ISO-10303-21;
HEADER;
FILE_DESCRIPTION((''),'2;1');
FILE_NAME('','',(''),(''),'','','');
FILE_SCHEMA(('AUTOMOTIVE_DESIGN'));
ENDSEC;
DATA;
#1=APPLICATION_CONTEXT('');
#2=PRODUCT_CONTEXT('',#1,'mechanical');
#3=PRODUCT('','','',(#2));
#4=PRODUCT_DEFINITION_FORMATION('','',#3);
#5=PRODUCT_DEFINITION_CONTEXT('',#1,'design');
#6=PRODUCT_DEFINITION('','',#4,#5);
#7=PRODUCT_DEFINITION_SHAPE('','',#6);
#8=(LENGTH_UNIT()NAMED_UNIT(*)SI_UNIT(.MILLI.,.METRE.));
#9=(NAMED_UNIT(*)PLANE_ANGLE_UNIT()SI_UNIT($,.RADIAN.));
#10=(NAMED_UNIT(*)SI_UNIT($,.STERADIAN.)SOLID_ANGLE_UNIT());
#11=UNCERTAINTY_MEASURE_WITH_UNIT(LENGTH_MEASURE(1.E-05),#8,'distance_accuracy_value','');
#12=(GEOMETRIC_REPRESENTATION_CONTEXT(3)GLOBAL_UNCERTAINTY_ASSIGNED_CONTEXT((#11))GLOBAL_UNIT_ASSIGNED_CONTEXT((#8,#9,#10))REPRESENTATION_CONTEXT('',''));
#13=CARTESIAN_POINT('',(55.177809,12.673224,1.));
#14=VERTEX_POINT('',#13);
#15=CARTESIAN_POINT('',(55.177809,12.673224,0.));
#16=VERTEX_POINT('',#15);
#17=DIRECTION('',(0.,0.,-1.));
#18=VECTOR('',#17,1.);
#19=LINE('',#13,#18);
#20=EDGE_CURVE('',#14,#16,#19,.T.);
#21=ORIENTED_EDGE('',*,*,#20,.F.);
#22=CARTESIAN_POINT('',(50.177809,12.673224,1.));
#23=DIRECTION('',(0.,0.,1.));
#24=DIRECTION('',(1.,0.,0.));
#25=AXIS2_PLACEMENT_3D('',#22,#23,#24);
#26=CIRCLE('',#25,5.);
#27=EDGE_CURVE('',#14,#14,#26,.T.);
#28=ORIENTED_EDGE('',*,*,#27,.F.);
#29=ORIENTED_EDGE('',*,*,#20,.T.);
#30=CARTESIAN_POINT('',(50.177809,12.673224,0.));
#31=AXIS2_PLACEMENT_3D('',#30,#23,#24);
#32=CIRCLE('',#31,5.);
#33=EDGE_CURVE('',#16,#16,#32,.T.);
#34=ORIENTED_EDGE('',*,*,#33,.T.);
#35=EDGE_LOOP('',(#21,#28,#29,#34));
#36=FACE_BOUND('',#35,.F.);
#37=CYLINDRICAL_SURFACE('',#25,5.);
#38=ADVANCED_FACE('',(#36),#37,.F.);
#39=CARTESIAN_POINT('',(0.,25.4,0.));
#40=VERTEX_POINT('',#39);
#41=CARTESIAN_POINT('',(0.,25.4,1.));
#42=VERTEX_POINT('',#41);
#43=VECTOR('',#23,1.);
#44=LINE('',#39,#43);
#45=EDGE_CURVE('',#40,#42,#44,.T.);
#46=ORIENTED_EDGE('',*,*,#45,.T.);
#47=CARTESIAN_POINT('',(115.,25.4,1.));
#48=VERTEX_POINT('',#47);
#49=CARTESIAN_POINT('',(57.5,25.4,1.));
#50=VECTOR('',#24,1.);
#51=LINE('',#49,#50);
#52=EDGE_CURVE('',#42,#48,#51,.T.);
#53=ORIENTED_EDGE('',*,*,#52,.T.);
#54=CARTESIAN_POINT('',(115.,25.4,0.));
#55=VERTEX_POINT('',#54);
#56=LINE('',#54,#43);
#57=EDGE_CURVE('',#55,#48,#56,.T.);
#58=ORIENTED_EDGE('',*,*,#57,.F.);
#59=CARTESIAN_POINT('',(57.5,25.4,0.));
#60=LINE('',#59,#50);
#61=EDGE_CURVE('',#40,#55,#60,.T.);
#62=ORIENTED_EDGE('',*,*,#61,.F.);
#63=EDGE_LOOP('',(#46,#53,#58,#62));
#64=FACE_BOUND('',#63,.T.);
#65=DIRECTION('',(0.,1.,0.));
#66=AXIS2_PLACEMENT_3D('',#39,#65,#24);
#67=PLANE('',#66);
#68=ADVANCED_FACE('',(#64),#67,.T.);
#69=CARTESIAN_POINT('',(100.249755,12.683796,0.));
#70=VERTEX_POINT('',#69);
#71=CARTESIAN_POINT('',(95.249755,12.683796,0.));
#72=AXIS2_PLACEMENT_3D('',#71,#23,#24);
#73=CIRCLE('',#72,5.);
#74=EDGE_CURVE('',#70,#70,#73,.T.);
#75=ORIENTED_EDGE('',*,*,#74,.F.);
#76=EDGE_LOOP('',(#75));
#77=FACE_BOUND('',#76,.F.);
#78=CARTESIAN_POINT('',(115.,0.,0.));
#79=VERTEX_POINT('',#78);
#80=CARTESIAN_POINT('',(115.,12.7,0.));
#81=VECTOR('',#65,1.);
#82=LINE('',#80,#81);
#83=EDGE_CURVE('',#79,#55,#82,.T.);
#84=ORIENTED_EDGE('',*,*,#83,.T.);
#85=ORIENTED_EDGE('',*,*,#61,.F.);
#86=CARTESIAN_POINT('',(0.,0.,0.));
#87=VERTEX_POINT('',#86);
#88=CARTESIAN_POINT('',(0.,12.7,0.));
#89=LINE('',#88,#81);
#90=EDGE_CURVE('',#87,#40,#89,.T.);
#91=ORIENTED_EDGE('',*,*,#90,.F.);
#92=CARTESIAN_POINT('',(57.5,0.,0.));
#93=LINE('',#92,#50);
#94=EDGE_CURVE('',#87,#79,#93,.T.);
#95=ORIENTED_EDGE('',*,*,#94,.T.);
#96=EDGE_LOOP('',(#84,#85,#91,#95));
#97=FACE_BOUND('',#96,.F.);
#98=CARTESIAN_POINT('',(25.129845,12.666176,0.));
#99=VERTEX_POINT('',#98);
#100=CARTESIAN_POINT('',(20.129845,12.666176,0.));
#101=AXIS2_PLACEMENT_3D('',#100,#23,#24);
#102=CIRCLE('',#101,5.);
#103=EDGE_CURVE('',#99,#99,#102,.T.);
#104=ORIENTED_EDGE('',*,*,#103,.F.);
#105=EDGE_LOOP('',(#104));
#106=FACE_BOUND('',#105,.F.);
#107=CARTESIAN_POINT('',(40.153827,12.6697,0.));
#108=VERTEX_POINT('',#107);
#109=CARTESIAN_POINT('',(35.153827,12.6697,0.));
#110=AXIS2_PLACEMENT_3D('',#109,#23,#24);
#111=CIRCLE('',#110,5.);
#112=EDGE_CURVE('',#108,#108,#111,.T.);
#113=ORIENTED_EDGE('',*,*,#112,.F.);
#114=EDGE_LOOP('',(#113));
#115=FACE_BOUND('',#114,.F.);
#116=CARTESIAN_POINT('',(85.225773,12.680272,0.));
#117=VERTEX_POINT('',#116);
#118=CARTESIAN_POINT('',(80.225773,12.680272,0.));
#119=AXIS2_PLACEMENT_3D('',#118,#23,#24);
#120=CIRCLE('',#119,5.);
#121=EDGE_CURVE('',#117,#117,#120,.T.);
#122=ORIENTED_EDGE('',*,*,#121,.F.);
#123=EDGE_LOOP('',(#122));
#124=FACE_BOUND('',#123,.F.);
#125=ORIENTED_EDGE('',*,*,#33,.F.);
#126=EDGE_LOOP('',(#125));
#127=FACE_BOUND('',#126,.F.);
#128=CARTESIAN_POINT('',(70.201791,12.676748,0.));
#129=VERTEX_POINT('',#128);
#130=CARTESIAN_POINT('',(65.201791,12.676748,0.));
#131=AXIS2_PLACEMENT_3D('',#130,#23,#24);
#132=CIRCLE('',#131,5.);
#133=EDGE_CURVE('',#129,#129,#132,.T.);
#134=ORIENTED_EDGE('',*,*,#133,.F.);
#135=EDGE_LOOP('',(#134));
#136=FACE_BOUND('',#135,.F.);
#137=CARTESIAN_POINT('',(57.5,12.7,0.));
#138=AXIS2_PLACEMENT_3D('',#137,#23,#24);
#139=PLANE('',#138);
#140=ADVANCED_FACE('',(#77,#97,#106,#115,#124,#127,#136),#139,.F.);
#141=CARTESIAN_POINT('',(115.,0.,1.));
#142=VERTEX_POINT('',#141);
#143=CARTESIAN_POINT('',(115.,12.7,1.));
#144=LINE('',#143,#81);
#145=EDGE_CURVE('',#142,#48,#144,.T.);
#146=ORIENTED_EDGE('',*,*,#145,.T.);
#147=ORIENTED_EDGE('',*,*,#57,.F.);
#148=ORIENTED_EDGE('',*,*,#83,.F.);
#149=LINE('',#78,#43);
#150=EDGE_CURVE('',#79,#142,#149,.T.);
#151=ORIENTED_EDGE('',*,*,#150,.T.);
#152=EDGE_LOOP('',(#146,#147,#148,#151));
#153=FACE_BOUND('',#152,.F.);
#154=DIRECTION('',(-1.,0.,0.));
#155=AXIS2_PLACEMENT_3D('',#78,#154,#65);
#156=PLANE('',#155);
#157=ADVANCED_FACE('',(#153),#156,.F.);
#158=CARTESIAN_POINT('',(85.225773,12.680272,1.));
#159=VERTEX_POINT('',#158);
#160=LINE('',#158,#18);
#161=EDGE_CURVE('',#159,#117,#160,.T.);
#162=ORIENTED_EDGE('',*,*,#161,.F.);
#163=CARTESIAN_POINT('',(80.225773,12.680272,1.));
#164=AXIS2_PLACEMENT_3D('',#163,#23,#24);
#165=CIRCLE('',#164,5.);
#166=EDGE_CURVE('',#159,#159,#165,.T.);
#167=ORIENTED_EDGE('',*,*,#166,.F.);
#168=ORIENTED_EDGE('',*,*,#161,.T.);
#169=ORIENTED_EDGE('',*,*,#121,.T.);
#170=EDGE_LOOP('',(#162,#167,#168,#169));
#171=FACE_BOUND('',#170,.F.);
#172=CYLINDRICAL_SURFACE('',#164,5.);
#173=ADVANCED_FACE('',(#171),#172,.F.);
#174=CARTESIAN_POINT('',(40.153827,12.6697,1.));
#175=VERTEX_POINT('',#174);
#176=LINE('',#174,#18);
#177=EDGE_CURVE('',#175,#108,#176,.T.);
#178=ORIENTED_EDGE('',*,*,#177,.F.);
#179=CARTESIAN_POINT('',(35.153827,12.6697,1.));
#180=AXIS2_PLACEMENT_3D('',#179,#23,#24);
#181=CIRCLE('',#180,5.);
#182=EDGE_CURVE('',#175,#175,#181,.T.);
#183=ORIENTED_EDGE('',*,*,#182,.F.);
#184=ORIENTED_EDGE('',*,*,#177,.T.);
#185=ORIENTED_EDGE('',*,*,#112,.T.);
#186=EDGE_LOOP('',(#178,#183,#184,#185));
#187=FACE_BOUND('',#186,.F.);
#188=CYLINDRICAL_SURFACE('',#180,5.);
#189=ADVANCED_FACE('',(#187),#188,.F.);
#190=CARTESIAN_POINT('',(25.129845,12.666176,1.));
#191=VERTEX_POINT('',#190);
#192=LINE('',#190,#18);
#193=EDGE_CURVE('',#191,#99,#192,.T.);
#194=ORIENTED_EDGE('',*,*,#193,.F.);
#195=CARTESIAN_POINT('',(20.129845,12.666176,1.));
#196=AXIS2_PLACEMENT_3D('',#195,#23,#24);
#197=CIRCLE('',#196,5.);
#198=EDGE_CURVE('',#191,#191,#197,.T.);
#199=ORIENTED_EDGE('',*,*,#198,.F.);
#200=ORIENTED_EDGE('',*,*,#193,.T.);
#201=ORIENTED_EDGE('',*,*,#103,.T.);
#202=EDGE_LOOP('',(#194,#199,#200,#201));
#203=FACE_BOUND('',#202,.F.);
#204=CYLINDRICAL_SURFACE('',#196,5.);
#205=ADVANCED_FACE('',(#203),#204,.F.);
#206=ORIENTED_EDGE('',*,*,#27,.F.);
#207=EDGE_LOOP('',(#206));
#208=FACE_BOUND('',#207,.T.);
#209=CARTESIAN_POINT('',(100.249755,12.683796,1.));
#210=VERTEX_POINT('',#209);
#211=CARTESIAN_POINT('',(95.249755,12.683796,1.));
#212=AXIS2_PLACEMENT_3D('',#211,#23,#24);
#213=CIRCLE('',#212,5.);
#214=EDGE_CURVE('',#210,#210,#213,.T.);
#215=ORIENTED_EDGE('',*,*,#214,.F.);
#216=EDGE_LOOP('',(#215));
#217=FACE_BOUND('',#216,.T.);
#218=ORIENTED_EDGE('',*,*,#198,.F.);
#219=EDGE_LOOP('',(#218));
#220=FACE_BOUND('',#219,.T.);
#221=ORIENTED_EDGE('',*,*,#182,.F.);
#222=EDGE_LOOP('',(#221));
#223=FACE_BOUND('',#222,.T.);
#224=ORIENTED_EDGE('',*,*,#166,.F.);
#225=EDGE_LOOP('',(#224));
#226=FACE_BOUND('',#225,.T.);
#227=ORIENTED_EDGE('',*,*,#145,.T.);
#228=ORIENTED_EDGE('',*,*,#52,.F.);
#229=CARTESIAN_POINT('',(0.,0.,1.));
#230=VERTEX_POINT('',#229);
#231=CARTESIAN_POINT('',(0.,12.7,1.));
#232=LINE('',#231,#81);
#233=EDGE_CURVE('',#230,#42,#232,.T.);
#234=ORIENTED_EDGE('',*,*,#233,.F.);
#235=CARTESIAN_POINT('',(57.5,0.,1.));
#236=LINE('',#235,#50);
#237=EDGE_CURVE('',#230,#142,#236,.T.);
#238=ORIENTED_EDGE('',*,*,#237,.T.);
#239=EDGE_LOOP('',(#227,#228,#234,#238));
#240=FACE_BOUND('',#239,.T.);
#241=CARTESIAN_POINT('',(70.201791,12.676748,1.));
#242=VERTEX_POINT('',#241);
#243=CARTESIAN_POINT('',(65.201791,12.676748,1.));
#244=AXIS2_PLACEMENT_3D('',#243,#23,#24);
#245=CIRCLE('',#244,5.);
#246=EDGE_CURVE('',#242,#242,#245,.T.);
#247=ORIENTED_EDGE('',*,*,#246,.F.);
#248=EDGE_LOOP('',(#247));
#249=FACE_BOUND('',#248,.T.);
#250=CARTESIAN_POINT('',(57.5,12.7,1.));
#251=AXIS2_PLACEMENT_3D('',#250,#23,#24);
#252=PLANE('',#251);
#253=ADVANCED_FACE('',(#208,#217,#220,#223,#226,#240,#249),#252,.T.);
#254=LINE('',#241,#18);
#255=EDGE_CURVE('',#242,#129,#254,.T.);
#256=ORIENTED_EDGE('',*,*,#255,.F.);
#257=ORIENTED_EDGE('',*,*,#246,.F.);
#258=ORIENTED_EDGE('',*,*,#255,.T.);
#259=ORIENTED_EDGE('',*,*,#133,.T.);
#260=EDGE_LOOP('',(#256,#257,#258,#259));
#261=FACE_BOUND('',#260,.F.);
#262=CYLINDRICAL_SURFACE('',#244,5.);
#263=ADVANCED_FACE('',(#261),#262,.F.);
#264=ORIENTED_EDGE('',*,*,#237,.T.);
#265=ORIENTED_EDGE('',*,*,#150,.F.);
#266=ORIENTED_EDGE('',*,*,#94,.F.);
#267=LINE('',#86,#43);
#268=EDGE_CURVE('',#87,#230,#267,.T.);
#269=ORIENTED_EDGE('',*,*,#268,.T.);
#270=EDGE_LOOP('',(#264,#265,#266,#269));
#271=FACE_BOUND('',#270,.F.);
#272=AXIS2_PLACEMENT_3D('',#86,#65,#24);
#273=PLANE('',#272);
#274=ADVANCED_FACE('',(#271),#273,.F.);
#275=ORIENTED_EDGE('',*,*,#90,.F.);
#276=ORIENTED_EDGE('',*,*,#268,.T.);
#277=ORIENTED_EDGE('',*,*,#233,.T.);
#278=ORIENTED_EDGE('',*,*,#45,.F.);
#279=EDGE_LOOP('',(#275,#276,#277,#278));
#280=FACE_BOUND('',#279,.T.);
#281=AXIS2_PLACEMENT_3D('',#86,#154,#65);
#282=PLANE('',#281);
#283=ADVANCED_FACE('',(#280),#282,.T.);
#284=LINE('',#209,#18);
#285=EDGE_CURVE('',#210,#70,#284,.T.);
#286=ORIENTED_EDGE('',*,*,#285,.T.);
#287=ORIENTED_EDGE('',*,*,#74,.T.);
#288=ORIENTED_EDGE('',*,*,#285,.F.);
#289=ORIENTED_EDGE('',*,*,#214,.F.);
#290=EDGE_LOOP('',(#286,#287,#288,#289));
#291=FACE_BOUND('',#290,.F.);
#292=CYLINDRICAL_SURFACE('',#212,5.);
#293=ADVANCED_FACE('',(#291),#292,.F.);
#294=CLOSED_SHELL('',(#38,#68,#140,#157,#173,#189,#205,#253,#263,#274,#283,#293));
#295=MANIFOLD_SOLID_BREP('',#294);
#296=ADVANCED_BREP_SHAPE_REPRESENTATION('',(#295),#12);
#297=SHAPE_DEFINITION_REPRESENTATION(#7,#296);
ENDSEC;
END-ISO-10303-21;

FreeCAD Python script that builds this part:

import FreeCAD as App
import Part
import Sketcher

V = App.Vector
Q = App.Units.Quantity

doc = App.newDocument("Part")
body = doc.addObject("PartDesign::Body", "Body")

sketch1 = doc.addObject("Sketcher::SketchObject", "Sketch")
body.addObject(sketch1)
sketch1.AttachmentSupport = (doc.XY_Plane, [""])
sketch1.MapMode = "FlatFace"
sketch1.addGeometry([
    Part.LineSegment(V(0, 25.4, 0), V(0, 0, 0)),
    Part.LineSegment(V(0, 0, 0), V(115, 0, 0)),
    Part.LineSegment(V(115, 0, 0), V(115, 25.4, 0)),
    Part.LineSegment(V(115, 25.4, 0), V(0, 25.4, 0)),
], False)
sketch1.addConstraint([
    Sketcher.Constraint("Coincident", 0, 2, 1, 1),
    Sketcher.Constraint("Coincident", 1, 2, 2, 1),
    Sketcher.Constraint("Coincident", 2, 2, 3, 1),
    Sketcher.Constraint("Coincident", 3, 2, 0, 1),
    Sketcher.Constraint("Vertical", 0),
    Sketcher.Constraint("Horizontal", 1),
    Sketcher.Constraint("Vertical", 2),
    Sketcher.Constraint("Horizontal", 3),
    Sketcher.Constraint("Coincident", 0, 2, -1, 1),
    Sketcher.Constraint("DistanceX", 1, 1, 1, 2, Q("115 mm")),
    Sketcher.Constraint("DistanceY", 0, 2, 0, 1, Q("25.4 mm")),
])
pad1 = doc.addObject("PartDesign::Pad", "Pad")
body.addObject(pad1)
pad1.Profile = sketch1
pad1.Length = 1

sketch2 = doc.addObject("Sketcher::SketchObject", "Sketch001")
body.addObject(sketch2)
sketch2.AttachmentSupport = (doc.XY_Plane, [""])
sketch2.MapMode = "FlatFace"
sketch2.AttachmentOffset = App.Placement(V(0, 0, 1), App.Rotation())
sketch2.addGeometry([
    Part.Circle(V(20.129845, 12.666176, 0), V(0, 0, 1), 5),
    Part.Circle(V(35.153827, 12.6697, 0), V(0, 0, 1), 5),
    Part.Circle(V(50.177809, 12.673224, 0), V(0, 0, 1), 5),
    Part.Circle(V(65.201791, 12.676748, 0), V(0, 0, 1), 5),
    Part.Circle(V(80.225773, 12.680272, 0), V(0, 0, 1), 5),
    Part.Circle(V(95.249755, 12.683796, 0), V(0, 0, 1), 5),
], False)
sketch2.addConstraint([
    Sketcher.Constraint("Equal", 0, 1),
    Sketcher.Constraint("Equal", 1, 2),
    Sketcher.Constraint("Equal", 2, 3),
    Sketcher.Constraint("Equal", 3, 4),
    Sketcher.Constraint("Equal", 4, 5),
    Sketcher.Constraint("Diameter", 0, Q("10 mm")),
    Sketcher.Constraint("DistanceY", -1, 1, 1, 3, Q("12.6697 mm")),
    Sketcher.Constraint("DistanceX", -1, 1, 2, 3, Q("50.177809 mm")),
    Sketcher.Constraint("DistanceX", -1, 1, 3, 3, Q("65.201791 mm")),
    Sketcher.Constraint("DistanceY", 0, 3, 3, 3, Q("0.010572 mm")),
    Sketcher.Constraint("DistanceY", 2, 3, 4, 3, Q("0.007048 mm")),
    Sketcher.Constraint("DistanceY", 1, 3, 4, 3, Q("0.010572 mm")),
    Sketcher.Constraint("DistanceX", 4, 3, 5, 3, Q("15.023982 mm")),
    Sketcher.Constraint("DistanceY", 2, 3, 5, 3, Q("0.010572 mm")),
    Sketcher.Constraint("DistanceX", 0, 3, 5, 3, Q("75.11991 mm")),
    Sketcher.Constraint("DistanceY", 0, 3, 5, 3, Q("0.01762 mm")),
    Sketcher.Constraint("DistanceX", -1, 1, 0, 3, Q("20.129845 mm")),
    Sketcher.Constraint("DistanceX", -1, 1, 1, 3, Q("35.153827 mm")),
])
pocket1 = doc.addObject("PartDesign::Pocket", "Pocket")
body.addObject(pocket1)
pocket1.Profile = sketch2
pocket1.Length = 5

doc.recompute()
